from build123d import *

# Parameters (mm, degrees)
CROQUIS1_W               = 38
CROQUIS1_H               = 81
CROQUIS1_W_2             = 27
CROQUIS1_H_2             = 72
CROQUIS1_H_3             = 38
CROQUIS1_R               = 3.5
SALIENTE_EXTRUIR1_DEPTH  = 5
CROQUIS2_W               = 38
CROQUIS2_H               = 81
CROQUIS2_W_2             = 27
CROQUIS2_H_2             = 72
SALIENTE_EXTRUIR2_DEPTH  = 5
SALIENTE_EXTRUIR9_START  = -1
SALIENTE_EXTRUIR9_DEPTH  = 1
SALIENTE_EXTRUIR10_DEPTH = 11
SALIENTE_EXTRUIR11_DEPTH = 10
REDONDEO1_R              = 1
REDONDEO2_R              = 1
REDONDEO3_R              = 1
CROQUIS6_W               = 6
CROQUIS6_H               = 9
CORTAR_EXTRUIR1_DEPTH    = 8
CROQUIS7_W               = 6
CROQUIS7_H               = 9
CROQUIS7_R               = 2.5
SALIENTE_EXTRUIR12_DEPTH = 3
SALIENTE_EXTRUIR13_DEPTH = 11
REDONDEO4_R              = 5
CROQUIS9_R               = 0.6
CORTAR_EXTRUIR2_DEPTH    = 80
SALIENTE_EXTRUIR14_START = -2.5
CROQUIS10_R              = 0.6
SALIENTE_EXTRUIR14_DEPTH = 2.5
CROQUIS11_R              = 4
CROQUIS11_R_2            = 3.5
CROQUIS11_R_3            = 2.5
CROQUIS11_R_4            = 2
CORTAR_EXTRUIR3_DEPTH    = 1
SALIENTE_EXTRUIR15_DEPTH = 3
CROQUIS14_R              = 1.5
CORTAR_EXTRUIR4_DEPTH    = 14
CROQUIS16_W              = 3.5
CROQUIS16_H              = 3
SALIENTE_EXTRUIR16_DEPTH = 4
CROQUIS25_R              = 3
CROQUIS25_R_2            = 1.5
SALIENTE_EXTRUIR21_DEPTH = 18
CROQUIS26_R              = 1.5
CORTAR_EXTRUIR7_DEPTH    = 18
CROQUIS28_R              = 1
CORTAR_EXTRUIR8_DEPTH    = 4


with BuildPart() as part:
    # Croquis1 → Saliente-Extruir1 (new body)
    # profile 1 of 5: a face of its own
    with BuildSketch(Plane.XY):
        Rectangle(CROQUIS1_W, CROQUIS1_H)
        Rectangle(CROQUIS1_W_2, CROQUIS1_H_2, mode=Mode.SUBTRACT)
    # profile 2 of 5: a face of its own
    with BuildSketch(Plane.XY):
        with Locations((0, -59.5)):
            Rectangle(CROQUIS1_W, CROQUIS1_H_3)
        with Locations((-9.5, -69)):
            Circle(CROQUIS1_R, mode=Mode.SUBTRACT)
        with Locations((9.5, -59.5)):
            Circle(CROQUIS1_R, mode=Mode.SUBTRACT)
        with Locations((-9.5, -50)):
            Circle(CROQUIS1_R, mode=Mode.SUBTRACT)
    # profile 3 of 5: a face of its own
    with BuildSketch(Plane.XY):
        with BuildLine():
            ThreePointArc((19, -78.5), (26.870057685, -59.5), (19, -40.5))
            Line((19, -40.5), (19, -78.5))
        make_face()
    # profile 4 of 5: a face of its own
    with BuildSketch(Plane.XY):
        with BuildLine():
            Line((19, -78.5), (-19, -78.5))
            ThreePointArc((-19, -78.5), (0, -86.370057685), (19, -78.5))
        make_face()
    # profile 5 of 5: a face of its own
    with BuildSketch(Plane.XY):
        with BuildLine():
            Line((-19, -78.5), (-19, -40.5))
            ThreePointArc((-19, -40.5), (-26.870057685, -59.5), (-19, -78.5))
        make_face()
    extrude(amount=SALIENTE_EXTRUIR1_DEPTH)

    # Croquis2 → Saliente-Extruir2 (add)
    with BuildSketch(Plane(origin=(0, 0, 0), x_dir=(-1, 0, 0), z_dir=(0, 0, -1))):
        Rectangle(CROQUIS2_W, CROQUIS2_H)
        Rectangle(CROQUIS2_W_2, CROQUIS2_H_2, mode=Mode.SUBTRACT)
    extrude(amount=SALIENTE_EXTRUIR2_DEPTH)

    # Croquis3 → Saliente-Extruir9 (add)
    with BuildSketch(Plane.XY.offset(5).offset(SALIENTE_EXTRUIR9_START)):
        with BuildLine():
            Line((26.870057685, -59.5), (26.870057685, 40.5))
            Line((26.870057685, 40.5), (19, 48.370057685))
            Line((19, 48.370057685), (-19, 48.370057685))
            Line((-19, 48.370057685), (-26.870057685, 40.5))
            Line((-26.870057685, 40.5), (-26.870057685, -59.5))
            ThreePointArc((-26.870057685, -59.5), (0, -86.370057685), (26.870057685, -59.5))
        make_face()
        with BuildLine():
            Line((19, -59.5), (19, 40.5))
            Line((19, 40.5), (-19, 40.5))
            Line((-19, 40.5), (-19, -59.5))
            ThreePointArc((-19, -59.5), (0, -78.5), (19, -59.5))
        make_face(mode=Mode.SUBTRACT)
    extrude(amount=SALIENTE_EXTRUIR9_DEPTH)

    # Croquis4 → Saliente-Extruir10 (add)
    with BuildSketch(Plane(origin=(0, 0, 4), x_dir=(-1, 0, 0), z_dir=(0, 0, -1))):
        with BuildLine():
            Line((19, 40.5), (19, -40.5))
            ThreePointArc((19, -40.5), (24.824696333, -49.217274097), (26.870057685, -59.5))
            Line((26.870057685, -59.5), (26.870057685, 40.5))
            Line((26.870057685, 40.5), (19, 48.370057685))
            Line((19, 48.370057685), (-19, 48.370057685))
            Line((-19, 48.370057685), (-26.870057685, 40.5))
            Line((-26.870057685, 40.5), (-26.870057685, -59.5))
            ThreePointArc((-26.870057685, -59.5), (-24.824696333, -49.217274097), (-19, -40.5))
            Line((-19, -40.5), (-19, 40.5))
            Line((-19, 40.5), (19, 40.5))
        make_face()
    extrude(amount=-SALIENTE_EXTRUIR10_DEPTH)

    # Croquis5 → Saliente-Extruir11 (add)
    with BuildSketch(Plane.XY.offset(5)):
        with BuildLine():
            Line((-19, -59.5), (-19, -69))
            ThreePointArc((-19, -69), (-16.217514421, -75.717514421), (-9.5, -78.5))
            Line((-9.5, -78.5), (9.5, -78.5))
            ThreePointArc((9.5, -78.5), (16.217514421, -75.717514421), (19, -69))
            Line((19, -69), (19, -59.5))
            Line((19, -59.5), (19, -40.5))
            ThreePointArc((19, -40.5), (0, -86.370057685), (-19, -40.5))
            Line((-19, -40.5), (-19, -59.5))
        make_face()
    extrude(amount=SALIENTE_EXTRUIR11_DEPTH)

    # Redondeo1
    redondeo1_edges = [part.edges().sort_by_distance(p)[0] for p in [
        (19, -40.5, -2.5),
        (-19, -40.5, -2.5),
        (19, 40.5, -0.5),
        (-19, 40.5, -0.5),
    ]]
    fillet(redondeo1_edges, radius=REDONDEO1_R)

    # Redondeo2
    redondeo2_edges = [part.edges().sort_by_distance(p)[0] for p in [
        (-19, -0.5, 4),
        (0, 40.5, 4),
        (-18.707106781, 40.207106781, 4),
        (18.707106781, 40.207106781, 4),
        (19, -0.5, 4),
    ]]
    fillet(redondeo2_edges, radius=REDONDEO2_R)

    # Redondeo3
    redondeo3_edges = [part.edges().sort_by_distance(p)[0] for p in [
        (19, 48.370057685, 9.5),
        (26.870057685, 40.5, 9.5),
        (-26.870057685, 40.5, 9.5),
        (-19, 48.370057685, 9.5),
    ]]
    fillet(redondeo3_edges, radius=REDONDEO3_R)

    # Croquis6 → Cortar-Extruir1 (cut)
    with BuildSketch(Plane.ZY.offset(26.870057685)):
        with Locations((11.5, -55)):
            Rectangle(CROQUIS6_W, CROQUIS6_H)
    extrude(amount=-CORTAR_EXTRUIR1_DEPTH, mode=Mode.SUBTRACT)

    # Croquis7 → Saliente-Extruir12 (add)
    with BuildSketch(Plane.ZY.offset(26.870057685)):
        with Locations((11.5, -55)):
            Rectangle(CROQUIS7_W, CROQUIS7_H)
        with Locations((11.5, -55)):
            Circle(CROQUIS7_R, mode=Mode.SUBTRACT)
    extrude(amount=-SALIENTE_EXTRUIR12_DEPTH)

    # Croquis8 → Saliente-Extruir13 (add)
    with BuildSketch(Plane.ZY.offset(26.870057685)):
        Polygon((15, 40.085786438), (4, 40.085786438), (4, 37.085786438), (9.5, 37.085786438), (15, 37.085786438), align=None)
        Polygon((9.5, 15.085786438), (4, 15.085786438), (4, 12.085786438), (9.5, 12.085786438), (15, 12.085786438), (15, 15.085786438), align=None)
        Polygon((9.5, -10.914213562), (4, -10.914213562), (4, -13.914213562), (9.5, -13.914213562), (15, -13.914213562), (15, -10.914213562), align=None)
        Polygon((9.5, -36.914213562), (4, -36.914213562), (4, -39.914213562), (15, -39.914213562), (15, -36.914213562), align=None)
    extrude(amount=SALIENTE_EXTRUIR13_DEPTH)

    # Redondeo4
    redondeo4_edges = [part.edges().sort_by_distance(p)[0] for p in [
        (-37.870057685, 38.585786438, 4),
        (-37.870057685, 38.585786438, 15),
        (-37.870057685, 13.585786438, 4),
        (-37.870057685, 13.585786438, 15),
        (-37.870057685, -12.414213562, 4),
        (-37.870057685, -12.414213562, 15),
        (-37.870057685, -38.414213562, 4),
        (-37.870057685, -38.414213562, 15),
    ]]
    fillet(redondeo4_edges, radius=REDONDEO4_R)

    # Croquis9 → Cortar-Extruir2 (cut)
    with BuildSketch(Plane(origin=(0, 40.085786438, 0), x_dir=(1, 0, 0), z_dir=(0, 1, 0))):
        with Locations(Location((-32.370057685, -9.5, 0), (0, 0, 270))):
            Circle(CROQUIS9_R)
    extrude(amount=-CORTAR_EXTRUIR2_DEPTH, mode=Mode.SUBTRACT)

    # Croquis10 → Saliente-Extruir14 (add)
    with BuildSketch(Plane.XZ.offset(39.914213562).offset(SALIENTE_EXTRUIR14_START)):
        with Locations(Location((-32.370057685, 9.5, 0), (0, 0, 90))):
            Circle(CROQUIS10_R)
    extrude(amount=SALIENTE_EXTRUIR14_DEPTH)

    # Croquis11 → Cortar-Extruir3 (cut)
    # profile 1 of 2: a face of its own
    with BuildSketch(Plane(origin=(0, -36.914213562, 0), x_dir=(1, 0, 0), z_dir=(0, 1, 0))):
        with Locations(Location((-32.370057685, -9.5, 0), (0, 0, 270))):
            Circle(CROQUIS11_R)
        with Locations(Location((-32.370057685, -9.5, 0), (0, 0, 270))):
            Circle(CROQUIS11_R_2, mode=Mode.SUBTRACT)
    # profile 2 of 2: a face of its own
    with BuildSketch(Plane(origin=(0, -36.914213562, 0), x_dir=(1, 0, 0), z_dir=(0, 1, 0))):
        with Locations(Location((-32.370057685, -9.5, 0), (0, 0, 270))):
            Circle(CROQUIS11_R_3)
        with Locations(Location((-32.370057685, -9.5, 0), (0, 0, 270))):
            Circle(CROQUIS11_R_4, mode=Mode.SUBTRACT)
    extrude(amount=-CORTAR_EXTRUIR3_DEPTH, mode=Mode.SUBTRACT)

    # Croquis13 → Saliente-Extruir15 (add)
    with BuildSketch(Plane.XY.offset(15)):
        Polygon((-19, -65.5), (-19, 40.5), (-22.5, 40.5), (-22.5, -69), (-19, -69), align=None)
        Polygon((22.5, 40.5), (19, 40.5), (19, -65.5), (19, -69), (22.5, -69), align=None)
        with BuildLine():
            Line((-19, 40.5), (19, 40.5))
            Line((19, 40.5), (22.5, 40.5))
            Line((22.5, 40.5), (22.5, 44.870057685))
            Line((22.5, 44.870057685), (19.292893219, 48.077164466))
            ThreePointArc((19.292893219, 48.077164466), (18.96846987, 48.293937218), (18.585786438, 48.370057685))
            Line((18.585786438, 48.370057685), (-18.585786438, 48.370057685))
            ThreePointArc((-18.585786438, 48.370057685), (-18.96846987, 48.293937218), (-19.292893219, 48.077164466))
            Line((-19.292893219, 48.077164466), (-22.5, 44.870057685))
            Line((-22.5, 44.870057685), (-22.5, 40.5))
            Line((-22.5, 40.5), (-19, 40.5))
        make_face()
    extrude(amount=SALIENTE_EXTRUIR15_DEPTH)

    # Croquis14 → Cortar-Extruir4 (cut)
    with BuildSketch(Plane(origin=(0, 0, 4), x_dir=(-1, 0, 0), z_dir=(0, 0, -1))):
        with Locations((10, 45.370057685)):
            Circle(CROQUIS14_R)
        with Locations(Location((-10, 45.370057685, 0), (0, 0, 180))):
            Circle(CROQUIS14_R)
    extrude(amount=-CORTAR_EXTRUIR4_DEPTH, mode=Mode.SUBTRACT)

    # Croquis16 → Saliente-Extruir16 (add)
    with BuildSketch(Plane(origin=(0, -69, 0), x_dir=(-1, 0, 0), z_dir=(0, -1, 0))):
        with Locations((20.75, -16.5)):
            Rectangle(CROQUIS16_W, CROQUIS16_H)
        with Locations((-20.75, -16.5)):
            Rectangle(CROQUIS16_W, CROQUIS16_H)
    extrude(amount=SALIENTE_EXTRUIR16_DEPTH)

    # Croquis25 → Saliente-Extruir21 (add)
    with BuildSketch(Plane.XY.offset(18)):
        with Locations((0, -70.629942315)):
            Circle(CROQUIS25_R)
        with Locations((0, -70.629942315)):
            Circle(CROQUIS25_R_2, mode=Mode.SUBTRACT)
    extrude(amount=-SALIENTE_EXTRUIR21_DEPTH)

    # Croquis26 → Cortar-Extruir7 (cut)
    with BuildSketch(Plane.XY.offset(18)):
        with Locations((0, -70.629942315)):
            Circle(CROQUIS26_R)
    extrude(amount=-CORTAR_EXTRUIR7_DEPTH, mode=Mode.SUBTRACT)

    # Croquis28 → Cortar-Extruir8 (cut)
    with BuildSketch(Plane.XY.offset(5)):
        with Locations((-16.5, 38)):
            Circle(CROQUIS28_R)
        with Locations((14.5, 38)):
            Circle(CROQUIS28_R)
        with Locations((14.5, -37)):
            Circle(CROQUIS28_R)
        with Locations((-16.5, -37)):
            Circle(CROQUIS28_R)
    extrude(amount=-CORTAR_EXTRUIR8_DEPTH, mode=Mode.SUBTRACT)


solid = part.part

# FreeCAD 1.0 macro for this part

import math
import FreeCAD as App
import Part
import Sketcher
Q = App.Units.Quantity


def edges_at(feature, points):
    """Names of the edges that pass closest to the given points."""
    edges = feature.Shape.Edges
    near = lambda p: min(range(len(edges)), key=lambda i: edges[i].distToShape(Part.Vertex(*p))[0])
    return sorted({f"Edge{near(p) + 1}" for p in points})


def add_polygon(sketch, points):
    """Adds a closed chain of lines whose ends are joined by coincident constraints."""
    first, n = sketch.GeometryCount, len(points)
    for a, b in zip(points, points[1:] + points[:1]):
        sketch.addGeometry(Part.LineSegment(App.Vector(*a, 0), App.Vector(*b, 0)), False)
    for i in range(n):
        sketch.addConstraint(Sketcher.Constraint("Coincident", first + i, 2, first + (i + 1) % n, 1))

doc = App.newDocument("Part")
body = doc.addObject("PartDesign::Body", "Body")

sketch1 = doc.addObject("Sketcher::SketchObject", "Sketch")
body.addObject(sketch1)
sketch1.AttachmentSupport = (doc.XY_Plane, [""])
sketch1.MapMode = "FlatFace"
sketch1.addGeometry(Part.LineSegment(App.Vector(-19, 40.5, 0), App.Vector(-19, -40.5, 0)), False)
sketch1.addGeometry(Part.ArcOfCircle(Part.Circle(App.Vector(0, -59.5, 0), App.Vector(0, 0, 1), 26.9), math.radians(135), math.radians(225)), False)
sketch1.addGeometry(Part.ArcOfCircle(Part.Circle(App.Vector(0, -59.5, 0), App.Vector(0, 0, 1), 26.9), math.radians(-135), math.radians(-45)), False)
sketch1.addGeometry(Part.ArcOfCircle(Part.Circle(App.Vector(0, -59.5, 0), App.Vector(0, 0, 1), 26.9), math.radians(-45), math.radians(45)), False)
sketch1.addGeometry(Part.LineSegment(App.Vector(19, -40.5, 0), App.Vector(19, 40.5, 0)), False)
sketch1.addGeometry(Part.LineSegment(App.Vector(19, 40.5, 0), App.Vector(-19, 40.5, 0)), False)
add_polygon(sketch1, [(13.5, -36), (-13.5, -36), (-13.5, 36), (13.5, 36)])
sketch1.addGeometry(Part.Circle(App.Vector(9.5, -59.5, 0), App.Vector(0, 0, 1), 3.5), False)
sketch1.addGeometry(Part.Circle(App.Vector(-9.5, -69, 0), App.Vector(0, 0, 1), 3.5), False)
sketch1.addGeometry(Part.Circle(App.Vector(-9.5, -50, 0), App.Vector(0, 0, 1), 3.5), False)
sketch1.addConstraint(Sketcher.Constraint("Coincident", 0, 2, 1, 1))
sketch1.addConstraint(Sketcher.Constraint("Tangent", 1, 2, 2, 1))
sketch1.addConstraint(Sketcher.Constraint("Tangent", 2, 2, 3, 1))
sketch1.addConstraint(Sketcher.Constraint("Coincident", 3, 2, 4, 1))
sketch1.addConstraint(Sketcher.Constraint("Coincident", 4, 2, 5, 1))
sketch1.addConstraint(Sketcher.Constraint("Coincident", 5, 2, 0, 1))
sketch1.addConstraint(Sketcher.Constraint("Vertical", 0))
sketch1.addConstraint(Sketcher.Constraint("Vertical", 4))
sketch1.addConstraint(Sketcher.Constraint("Horizontal", 5))
sketch1.addConstraint(Sketcher.Constraint("Horizontal", 6))
sketch1.addConstraint(Sketcher.Constraint("Vertical", 7))
sketch1.addConstraint(Sketcher.Constraint("Horizontal", 8))
sketch1.addConstraint(Sketcher.Constraint("Vertical", 9))
sketch1.addConstraint(Sketcher.Constraint("Coincident", 3, 3, 1, 3))
sketch1.addConstraint(Sketcher.Constraint("Equal", 10, 11))
sketch1.addConstraint(Sketcher.Constraint("Equal", 11, 12))
sketch1.addConstraint(Sketcher.Constraint("Symmetric", 0, 2, 4, 2, -1, 1))
sketch1.addConstraint(Sketcher.Constraint("Symmetric", 6, 2, 8, 2, -1, 1))
sketch1.addConstraint(Sketcher.Constraint("Symmetric", 1, 2, 2, 2, -2))
sketch1.addConstraint(Sketcher.Constraint("Horizontal", 3, 3, 10, 3))
sketch1.addConstraint(Sketcher.Constraint("Vertical", 11, 3, 12, 3))
sketch1.addConstraint(Sketcher.Constraint("Vertical", 0, 2, 1, 2))
sketch1.addConstraint(Sketcher.Constraint("Diameter", 10, Q("7 mm")))
sketch1.addConstraint(Sketcher.Constraint("DistanceX", 5, 2, 5, 1, Q("38 mm")))
sketch1.addConstraint(Sketcher.Constraint("DistanceX", 6, 2, 6, 1, Q("27 mm")))
sketch1.addConstraint(Sketcher.Constraint("DistanceY", 0, 2, 0, 1, Q("81 mm")))
sketch1.addConstraint(Sketcher.Constraint("DistanceY", 7, 1, 7, 2, Q("72 mm")))
sketch1.addConstraint(Sketcher.Constraint("DistanceY", 11, 3, -1, 1, Q("69 mm")))
sketch1.addConstraint(Sketcher.Constraint("DistanceY", 12, 3, -1, 1, Q("50 mm")))
sketch1.addConstraint(Sketcher.Constraint("DistanceX", 11, 3, 10, 3, Q("19 mm")))
sketch1.addConstraint(Sketcher.Constraint("DistanceY", 1, 3, 0, 2, Q("19 mm")))
sketch1.addConstraint(Sketcher.Constraint("DistanceX", 6, 2, 12, 3, Q("4 mm")))
pad1 = doc.addObject("PartDesign::Pad", "Pad")
body.addObject(pad1)
pad1.Profile = sketch1
pad1.Length = 5

sketch2 = doc.addObject("Sketcher::SketchObject", "Sketch001")
body.addObject(sketch2)
sketch2.AttachmentSupport = (doc.XY_Plane, [""])
sketch2.MapMode = "FlatFace"
add_polygon(sketch2, [(19, 40), (19, -40), (-19, -40), (-19, 40)])
add_polygon(sketch2, [(-14, -36), (14, -36), (14, 36), (-14, 36)])
sketch2.addConstraint(Sketcher.Constraint("Vertical", 0))
sketch2.addConstraint(Sketcher.Constraint("Horizontal", 1))
sketch2.addConstraint(Sketcher.Constraint("Vertical", 2))
sketch2.addConstraint(Sketcher.Constraint("Horizontal", 3))
sketch2.addConstraint(Sketcher.Constraint("Horizontal", 4))
sketch2.addConstraint(Sketcher.Constraint("Vertical", 5))
sketch2.addConstraint(Sketcher.Constraint("Horizontal", 6))
sketch2.addConstraint(Sketcher.Constraint("Vertical", 7))
sketch2.addConstraint(Sketcher.Constraint("Symmetric", 0, 2, 2, 2, -1, 1))
sketch2.addConstraint(Sketcher.Constraint("Symmetric", 4, 2, 6, 2, -1, 1))
sketch2.addConstraint(Sketcher.Constraint("DistanceX", 1, 2, 1, 1, Q("38 mm")))
sketch2.addConstraint(Sketcher.Constraint("DistanceX", 4, 1, 4, 2, Q("27 mm")))
sketch2.addConstraint(Sketcher.Constraint("DistanceY", 0, 2, 0, 1, Q("81 mm")))
sketch2.addConstraint(Sketcher.Constraint("DistanceY", 5, 1, 5, 2, Q("72 mm")))
pad2 = doc.addObject("PartDesign::Pad", "Pad001")
body.addObject(pad2)
pad2.Profile = sketch2
pad2.Length = 5
pad2.Reversed = True

sketch3 = doc.addObject("Sketcher::SketchObject", "Sketch002")
body.addObject(sketch3)
sketch3.AttachmentSupport = (doc.XY_Plane, [""])
sketch3.MapMode = "FlatFace"
sketch3.AttachmentOffset = App.Placement(App.Vector(0, 0, 4), App.Rotation())
sketch3.addGeometry(Part.LineSegment(App.Vector(27, -60, 0), App.Vector(27, 40, 0)), False)
sketch3.addGeometry(Part.LineSegment(App.Vector(27, 40, 0), App.Vector(19, 48, 0)), False)
sketch3.addGeometry(Part.LineSegment(App.Vector(19, 48, 0), App.Vector(-19, 48, 0)), False)
sketch3.addGeometry(Part.LineSegment(App.Vector(-19, 48, 0), App.Vector(-27, 40, 0)), False)
sketch3.addGeometry(Part.LineSegment(App.Vector(-27, 40, 0), App.Vector(-27, -60, 0)), False)
sketch3.addGeometry(Part.ArcOfCircle(Part.Circle(App.Vector(0, -60, 0), App.Vector(0, 0, 1), 27), math.radians(180), math.radians(360)), False)
sketch3.addGeometry(Part.LineSegment(App.Vector(19, 40, 0), App.Vector(19, -60, 0)), False)
sketch3.addGeometry(Part.ArcOfCircle(Part.Circle(App.Vector(0, -60, 0), App.Vector(0, 0, 1), 19), math.radians(180), math.radians(360)), False)
sketch3.addGeometry(Part.LineSegment(App.Vector(-19, -60, 0), App.Vector(-19, 40, 0)), False)
sketch3.addGeometry(Part.LineSegment(App.Vector(-19, 40, 0), App.Vector(19, 40, 0)), False)
sketch3.addConstraint(Sketcher.Constraint("Coincident", 0, 2, 1, 1))
sketch3.addConstraint(Sketcher.Constraint("Coincident", 1, 2, 2, 1))
sketch3.addConstraint(Sketcher.Constraint("Coincident", 2, 2, 3, 1))
sketch3.addConstraint(Sketcher.Constraint("Coincident", 3, 2, 4, 1))
sketch3.addConstraint(Sketcher.Constraint("Tangent", 4, 2, 5, 1))
sketch3.addConstraint(Sketcher.Constraint("Tangent", 5, 2, 0, 1))
sketch3.addConstraint(Sketcher.Constraint("Tangent", 6, 2, 7, 2))
sketch3.addConstraint(Sketcher.Constraint("Tangent", 7, 1, 8, 1))
sketch3.addConstraint(Sketcher.Constraint("Coincident", 8, 2, 9, 1))
sketch3.addConstraint(Sketcher.Constraint("Coincident", 9, 2, 6, 1))
sketch3.addConstraint(Sketcher.Constraint("Vertical", 0))
sketch3.addConstraint(Sketcher.Constraint("Horizontal", 2))
sketch3.addConstraint(Sketcher.Constraint("Vertical", 4))
sketch3.addConstraint(Sketcher.Constraint("Vertical", 6))
sketch3.addConstraint(Sketcher.Constraint("Vertical", 8))
sketch3.addConstraint(Sketcher.Constraint("Horizontal", 9))
sketch3.addConstraint(Sketcher.Constraint("Coincident", 7, 3, 5, 3))
sketch3.addConstraint(Sketcher.Constraint("Symmetric", 0, 2, 3, 2, -2))
sketch3.addConstraint(Sketcher.Constraint("Perpendicular", 1, 3))
sketch3.addConstraint(Sketcher.Constraint("Horizontal", 3, 2, 8, 2))
sketch3.addConstraint(Sketcher.Constraint("Vertical", 1, 2, 6, 2))
sketch3.addConstraint(Sketcher.Constraint("Vertical", 2, 2, 7, 1))
sketch3.addConstraint(Sketcher.Constraint("Radius", 7, Q("19 mm")))
sketch3.addConstraint(Sketcher.Constraint("DistanceY", 0, 1, 0, 2, Q("100 mm")))
sketch3.addConstraint(Sketcher.Constraint("DistanceY", 5, 3, -1, 1, Q("59.5 mm")))
sketch3.addConstraint(Sketcher.Constraint("Radius", 5, Q("26.870058 mm")))
pad3 = doc.addObject("PartDesign::Pad", "Pad002")
body.addObject(pad3)
pad3.Profile = sketch3
pad3.Length = 1

sketch4 = doc.addObject("Sketcher::SketchObject", "Sketch003")
body.addObject(sketch4)
sketch4.AttachmentSupport = (doc.XY_Plane, [""])
sketch4.MapMode = "FlatFace"
sketch4.AttachmentOffset = App.Placement(App.Vector(0, 0, 4), App.Rotation())
sketch4.addGeometry(Part.LineSegment(App.Vector(-19, 40, 0), App.Vector(-19, -40, 0)), False)
sketch4.addGeometry(Part.ArcOfCircle(Part.Circle(App.Vector(0, -59, 0), App.Vector(0, 0, 1), 27), math.radians(135), math.radians(180)), False)
sketch4.addGeometry(Part.LineSegment(App.Vector(-27, -60, 0), App.Vector(-27, 40, 0)), False)
sketch4.addGeometry(Part.LineSegment(App.Vector(-27, 40, 0), App.Vector(-19, 48, 0)), False)
sketch4.addGeometry(Part.LineSegment(App.Vector(-19, 48, 0), App.Vector(19, 48, 0)), False)
sketch4.addGeometry(Part.LineSegment(App.Vector(19, 48, 0), App.Vector(27, 40, 0)), False)
sketch4.addGeometry(Part.LineSegment(App.Vector(27, 40, 0), App.Vector(27, -60, 0)), False)
sketch4.addGeometry(Part.ArcOfCircle(Part.Circle(App.Vector(0, -59, 0), App.Vector(0, 0, 1), 27), math.radians(0), math.radians(45)), False)
sketch4.addGeometry(Part.LineSegment(App.Vector(19, -40, 0), App.Vector(19, 40, 0)), False)
sketch4.addGeometry(Part.LineSegment(App.Vector(19, 40, 0), App.Vector(-19, 40, 0)), False)
sketch4.addConstraint(Sketcher.Constraint("Coincident", 0, 2, 1, 1))
sketch4.addConstraint(Sketcher.Constraint("Tangent", 1, 2, 2, 1))
sketch4.addConstraint(Sketcher.Constraint("Coincident", 2, 2, 3, 1))
sketch4.addConstraint(Sketcher.Constraint("Coincident", 3, 2, 4, 1))
sketch4.addConstraint(Sketcher.Constraint("Coincident", 4, 2, 5, 1))
sketch4.addConstraint(Sketcher.Constraint("Coincident", 5, 2, 6, 1))
sketch4.addConstraint(Sketcher.Constraint("Tangent", 6, 2, 7, 1))
sketch4.addConstraint(Sketcher.Constraint("Coincident", 7, 2, 8, 1))
sketch4.addConstraint(Sketcher.Constraint("Coincident", 8, 2, 9, 1))
sketch4.addConstraint(Sketcher.Constraint("Coincident", 9, 2, 0, 1))
sketch4.addConstraint(Sketcher.Constraint("Vertical", 0))
sketch4.addConstraint(Sketcher.Constraint("Vertical", 2))
sketch4.addConstraint(Sketcher.Constraint("Horizontal", 4))
sketch4.addConstraint(Sketcher.Constraint("Vertical", 6))
sketch4.addConstraint(Sketcher.Constraint("Vertical", 8))
sketch4.addConstraint(Sketcher.Constraint("Horizontal", 9))
sketch4.addConstraint(Sketcher.Constraint("Coincident", 7, 3, 1, 3))
sketch4.addConstraint(Sketcher.Constraint("Equal", 1, 7))
sketch4.addConstraint(Sketcher.Constraint("Symmetric", 0, 2, 8, 2, -1, 1))
sketch4.addConstraint(Sketcher.Constraint("Symmetric", 2, 2, 5, 2, -2))
sketch4.addConstraint(Sketcher.Constraint("Perpendicular", 3, 5))
sketch4.addConstraint(Sketcher.Constraint("Horizontal", 5, 2, 8, 2))
sketch4.addConstraint(Sketcher.Constraint("Vertical", 0, 2, 3, 2))
sketch4.addConstraint(Sketcher.Constraint("Vertical", 4, 2, 7, 2))
sketch4.addConstraint(Sketcher.Constraint("DistanceX", 4, 1, 4, 2, Q("38 mm")))
sketch4.addConstraint(Sketcher.Constraint("DistanceY", 0, 2, 0, 1, Q("81 mm")))
sketch4.addConstraint(Sketcher.Constraint("DistanceY", 2, 1, 2, 2, Q("100 mm")))
pad4 = doc.addObject("PartDesign::Pad", "Pad003")
body.addObject(pad4)
pad4.Profile = sketch4
pad4.Length = 11

sketch5 = doc.addObject("Sketcher::SketchObject", "Sketch004")
body.addObject(sketch5)
sketch5.AttachmentSupport = (doc.XY_Plane, [""])
sketch5.MapMode = "FlatFace"
sketch5.AttachmentOffset = App.Placement(App.Vector(0, 0, 5), App.Rotation())
sketch5.addGeometry(Part.ArcOfCircle(Part.Circle(App.Vector(-9, -69, 0), App.Vector(0, 0, 1), 10), math.radians(-180), math.radians(-90)), False)
sketch5.addGeometry(Part.LineSegment(App.Vector(-19, -69, 0), App.Vector(-19, -40, 0)), False)
sketch5.addGeometry(Part.ArcOfCircle(Part.Circle(App.Vector(0, -60, 0), App.Vector(0, 0, 1), 27), math.radians(135), math.radians(405)), False)
sketch5.addGeometry(Part.LineSegment(App.Vector(19, -40, 0), App.Vector(19, -69, 0)), False)
sketch5.addGeometry(Part.ArcOfCircle(Part.Circle(App.Vector(9, -69, 0), App.Vector(0, 0, 1), 10), math.radians(-90), math.radians(0)), False)
sketch5.addGeometry(Part.LineSegment(App.Vector(10, -78, 0), App.Vector(-10, -78, 0)), False)
sketch5.addConstraint(Sketcher.Constraint("Tangent", 0, 1, 1, 1))
sketch5.addConstraint(Sketcher.Constraint("Coincident", 1, 2, 2, 1))
sketch5.addConstraint(Sketcher.Constraint("Coincident", 2, 2, 3, 1))
sketch5.addConstraint(Sketcher.Constraint("Tangent", 3, 2, 4, 2))
sketch5.addConstraint(Sketcher.Constraint("Tangent", 4, 1, 5, 1))
sketch5.addConstraint(Sketcher.Constraint("Tangent", 5, 2, 0, 2))
sketch5.addConstraint(Sketcher.Constraint("Vertical", 1))
sketch5.addConstraint(Sketcher.Constraint("Vertical", 3))
sketch5.addConstraint(Sketcher.Constraint("Horizontal", 5))
sketch5.addConstraint(Sketcher.Constraint("Equal", 0, 4))
sketch5.addConstraint(Sketcher.Constraint("Symmetric", 1, 2, 2, 2, -2))
sketch5.addConstraint(Sketcher.Constraint("Radius", 0, Q("9.5 mm")))
sketch5.addConstraint(Sketcher.Constraint("DistanceX", 5, 2, 5, 1, Q("19 mm")))
sketch5.addConstraint(Sketcher.Constraint("DistanceY", 1, 1, 1, 2, Q("28.5 mm")))
sketch5.addConstraint(Sketcher.Constraint("DistanceY", 0, 3, -1, 1, Q("69 mm")))
sketch5.addConstraint(Sketcher.Constraint("DistanceY", 2, 3, 1, 2, Q("19 mm")))
pad5 = doc.addObject("PartDesign::Pad", "Pad004")
body.addObject(pad5)
pad5.Profile = sketch5
pad5.Length = 10
doc.recompute()

fillet = doc.addObject("PartDesign::Fillet", "Fillet")
body.addObject(fillet)
fillet.Base = (pad5, edges_at(pad5, [
    (19, -40.5, -2.5),
    (-19, -40.5, -2.5),
    (19, 40.5, -0.5),
    (-19, 40.5, -0.5),
]))
fillet.Radius = 1
doc.recompute()

fillet2 = doc.addObject("PartDesign::Fillet", "Fillet001")
body.addObject(fillet2)
fillet2.Base = (fillet, edges_at(fillet, [
    (-19, -0.5, 4),
    (0, 40.5, 4),
    (-18.707, 40.207, 4),
    (18.707, 40.207, 4),
    (19, -0.5, 4),
]))
fillet2.Radius = 1
doc.recompute()

fillet3 = doc.addObject("PartDesign::Fillet", "Fillet002")
body.addObject(fillet3)
fillet3.Base = (fillet2, edges_at(fillet2, [
    (19, 48.37, 9.5),
    (26.87, 40.5, 9.5),
    (-26.87, 40.5, 9.5),
    (-19, 48.37, 9.5),
]))
fillet3.Radius = 1

sketch6 = doc.addObject("Sketcher::SketchObject", "Sketch005")
body.addObject(sketch6)
sketch6.AttachmentSupport = (doc.YZ_Plane, [""])
sketch6.MapMode = "FlatFace"
sketch6.AttachmentOffset = App.Placement(App.Vector(0, 0, -26.870058), App.Rotation())
add_polygon(sketch6, [(-50, 8), (-60, 8), (-60, 14), (-50, 14)])
sketch6.addConstraint(Sketcher.Constraint("Horizontal", 0))
sketch6.addConstraint(Sketcher.Constraint("Vertical", 1))
sketch6.addConstraint(Sketcher.Constraint("Horizontal", 2))
sketch6.addConstraint(Sketcher.Constraint("Vertical", 3))
sketch6.addConstraint(Sketcher.Constraint("DistanceX", 0, 2, 0, 1, Q("9 mm")))
sketch6.addConstraint(Sketcher.Constraint("DistanceY", 1, 1, 1, 2, Q("6 mm")))
sketch6.addConstraint(Sketcher.Constraint("DistanceX", 0, 2, -1, 1, Q("59.5 mm")))
sketch6.addConstraint(Sketcher.Constraint("DistanceY", -1, 1, 0, 2, Q("8.5 mm")))
pocket1 = doc.addObject("PartDesign::Pocket", "Pocket")
body.addObject(pocket1)
pocket1.Profile = sketch6
pocket1.Length = 8
pocket1.Reversed = True

sketch7 = doc.addObject("Sketcher::SketchObject", "Sketch006")
body.addObject(sketch7)
sketch7.AttachmentSupport = (doc.YZ_Plane, [""])
sketch7.MapMode = "FlatFace"
sketch7.AttachmentOffset = App.Placement(App.Vector(0, 0, -26.870058), App.Rotation())
add_polygon(sketch7, [(-50.5, 8.5), (-59.5, 8.5), (-59.5, 14.5), (-50.5, 14.5)])
sketch7.addGeometry(Part.Circle(App.Vector(-55, 11.5, 0), App.Vector(0, 0, 1), 2.5), False)
sketch7.addConstraint(Sketcher.Constraint("Horizontal", 0))
sketch7.addConstraint(Sketcher.Constraint("Vertical", 1))
sketch7.addConstraint(Sketcher.Constraint("Horizontal", 2))
sketch7.addConstraint(Sketcher.Constraint("Vertical", 3))
sketch7.addConstraint(Sketcher.Constraint("Diameter", 4, Q("5 mm")))
sketch7.addConstraint(Sketcher.Constraint("DistanceX", 0, 2, 0, 1, Q("9 mm")))
sketch7.addConstraint(Sketcher.Constraint("DistanceY", 1, 1, 1, 2, Q("6 mm")))
sketch7.addConstraint(Sketcher.Constraint("DistanceX", 4, 3, -1, 1, Q("55 mm")))
sketch7.addConstraint(Sketcher.Constraint("DistanceY", 0, 2, 4, 3, Q("3 mm")))
sketch7.addConstraint(Sketcher.Constraint("DistanceY", -1, 1, 4, 3, Q("11.5 mm")))
sketch7.addConstraint(Sketcher.Constraint("DistanceX", 0, 2, -1, 1, Q("59.5 mm")))
pad6 = doc.addObject("PartDesign::Pad", "Pad005")
body.addObject(pad6)
pad6.Profile = sketch7
pad6.Length = 3

sketch8 = doc.addObject("Sketcher::SketchObject", "Sketch007")
body.addObject(sketch8)
sketch8.AttachmentSupport = (doc.YZ_Plane, [""])
sketch8.MapMode = "FlatFace"
sketch8.AttachmentOffset = App.Placement(App.Vector(0, 0, -26.870058), App.Rotation())
add_polygon(sketch8, [(40.1, 15), (40.1, 4), (37.1, 4), (37.1, 15)])
add_polygon(sketch8, [(15.1, 4), (12.1, 4), (12.1, 15), (15.1, 15)])
add_polygon(sketch8, [(-10.9, 4), (-13.9, 4), (-13.9, 15), (-10.9, 15)])
add_polygon(sketch8, [(-36.9, 4), (-39.9, 4), (-39.9, 15), (-36.9, 15)])
sketch8.addConstraint(Sketcher.Constraint("Vertical", 0))
sketch8.addConstraint(Sketcher.Constraint("Horizontal", 1))
sketch8.addConstraint(Sketcher.Constraint("Vertical", 2))
sketch8.addConstraint(Sketcher.Constraint("Horizontal", 3))
sketch8.addConstraint(Sketcher.Constraint("Horizontal", 4))
sketch8.addConstraint(Sketcher.Constraint("Vertical", 5))
sketch8.addConstraint(Sketcher.Constraint("Horizontal", 6))
sketch8.addConstraint(Sketcher.Constraint("Vertical", 7))
sketch8.addConstraint(Sketcher.Constraint("Horizontal", 8))
sketch8.addConstraint(Sketcher.Constraint("Vertical", 9))
sketch8.addConstraint(Sketcher.Constraint("Horizontal", 10))
sketch8.addConstraint(Sketcher.Constraint("Vertical", 11))
sketch8.addConstraint(Sketcher.Constraint("Horizontal", 12))
sketch8.addConstraint(Sketcher.Constraint("Vertical", 13))
sketch8.addConstraint(Sketcher.Constraint("Horizontal", 14))
sketch8.addConstraint(Sketcher.Constraint("Vertical", 15))
sketch8.addConstraint(Sketcher.Constraint("Horizontal", 1, 2, 4, 2))
sketch8.addConstraint(Sketcher.Constraint("Horizontal", 3, 2, 5, 2))
sketch8.addConstraint(Sketcher.Constraint("Horizontal", 7, 2, 8, 2))
sketch8.addConstraint(Sketcher.Constraint("Horizontal", 6, 2, 9, 2))
sketch8.addConstraint(Sketcher.Constraint("Horizontal", 11, 2, 12, 2))
sketch8.addConstraint(Sketcher.Constraint("Horizontal", 10, 2, 13, 2))
sketch8.addConstraint(Sketcher.Constraint("Equal", 3, 4))
sketch8.addConstraint(Sketcher.Constraint("Equal", 6, 8))
sketch8.addConstraint(Sketcher.Constraint("Equal", 10, 12))
sketch8.addConstraint(Sketcher.Constraint("DistanceX", 1, 2, 1, 1, Q("3 mm")))
sketch8.addConstraint(Sketcher.Constraint("DistanceY", 0, 2, 0, 1, Q("11 mm")))
sketch8.addConstraint(Sketcher.Constraint("DistanceY", -1, 1, 0, 2, Q("4 mm")))
sketch8.addConstraint(Sketcher.Constraint("DistanceX", 4, 2, 1, 2, Q("25 mm")))
sketch8.addConstraint(Sketcher.Constraint("DistanceX", 8, 2, 4, 2, Q("26 mm")))
sketch8.addConstraint(Sketcher.Constraint("DistanceX", 12, 2, 8, 2, Q("26 mm")))
sketch8.addConstraint(Sketcher.Constraint("DistanceX", -1, 1, 0, 2, Q("40.085786 mm")))
pad7 = doc.addObject("PartDesign::Pad", "Pad006")
body.addObject(pad7)
pad7.Profile = sketch8
pad7.Length = 11
pad7.Reversed = True
doc.recompute()

fillet4 = doc.addObject("PartDesign::Fillet", "Fillet003")
body.addObject(fillet4)
fillet4.Base = (pad7, edges_at(pad7, [
    (-37.87, 38.586, 4),
    (-37.87, 38.586, 15),
    (-37.87, 13.586, 4),
    (-37.87, 13.586, 15),
    (-37.87, -12.414, 4),
    (-37.87, -12.414, 15),
    (-37.87, -38.414, 4),
    (-37.87, -38.414, 15),
]))
fillet4.Radius = 5

sketch9 = doc.addObject("Sketcher::SketchObject", "Sketch008")
body.addObject(sketch9)
sketch9.AttachmentSupport = (doc.XZ_Plane, [""])
sketch9.MapMode = "FlatFace"
sketch9.AttachmentOffset = App.Placement(App.Vector(0, 0, -40.085786), App.Rotation())
sketch9.addGeometry(Part.Circle(App.Vector(-32.4, 9.5, 0), App.Vector(0, 0, 1), 0.6), False)
sketch9.addConstraint(Sketcher.Constraint("Diameter", 0, Q("1.2 mm")))
sketch9.addConstraint(Sketcher.Constraint("DistanceY", -1, 1, 0, 3, Q("9.5 mm")))
sketch9.addConstraint(Sketcher.Constraint("DistanceX", 0, 3, -1, 1, Q("32.370058 mm")))
pocket2 = doc.addObject("PartDesign::Pocket", "Pocket001")
body.addObject(pocket2)
pocket2.Profile = sketch9
pocket2.Length = 80
pocket2.Reversed = True

sketch10 = doc.addObject("Sketcher::SketchObject", "Sketch009")
body.addObject(sketch10)
sketch10.AttachmentSupport = (doc.XZ_Plane, [""])
sketch10.MapMode = "FlatFace"
sketch10.AttachmentOffset = App.Placement(App.Vector(0, 0, 37.414214), App.Rotation())
sketch10.addGeometry(Part.Circle(App.Vector(-32.4, 9.5, 0), App.Vector(0, 0, 1), 0.6), False)
sketch10.addConstraint(Sketcher.Constraint("Diameter", 0, Q("1.2 mm")))
sketch10.addConstraint(Sketcher.Constraint("DistanceY", -1, 1, 0, 3, Q("9.5 mm")))
sketch10.addConstraint(Sketcher.Constraint("DistanceX", 0, 3, -1, 1, Q("32.370058 mm")))
pad8 = doc.addObject("PartDesign::Pad", "Pad007")
body.addObject(pad8)
pad8.Profile = sketch10
pad8.Length = 2.5

sketch11 = doc.addObject("Sketcher::SketchObject", "Sketch010")
body.addObject(sketch11)
sketch11.AttachmentSupport = (doc.XZ_Plane, [""])
sketch11.MapMode = "FlatFace"
sketch11.AttachmentOffset = App.Placement(App.Vector(0, 0, 36.914214), App.Rotation())
sketch11.addGeometry(Part.Circle(App.Vector(-32.4, 9.5, 0), App.Vector(0, 0, 1), 4), False)
sketch11.addGeometry(Part.Circle(App.Vector(-32.4, 9.5, 0), App.Vector(0, 0, 1), 3.5), False)
sketch11.addGeometry(Part.Circle(App.Vector(-32.4, 9.5, 0), App.Vector(0, 0, 1), 2.5), False)
sketch11.addGeometry(Part.Circle(App.Vector(-32.4, 9.5, 0), App.Vector(0, 0, 1), 2), False)
sketch11.addConstraint(Sketcher.Constraint("Coincident", 1, 3, 0, 3))
sketch11.addConstraint(Sketcher.Constraint("Coincident", 2, 3, 0, 3))
sketch11.addConstraint(Sketcher.Constraint("Coincident", 3, 3, 0, 3))
sketch11.addConstraint(Sketcher.Constraint("Diameter", 0, Q("8 mm")))
sketch11.addConstraint(Sketcher.Constraint("Diameter", 1, Q("7 mm")))
sketch11.addConstraint(Sketcher.Constraint("Diameter", 2, Q("5 mm")))
sketch11.addConstraint(Sketcher.Constraint("Diameter", 3, Q("4 mm")))
sketch11.addConstraint(Sketcher.Constraint("DistanceY", -1, 1, 0, 3, Q("9.5 mm")))
sketch11.addConstraint(Sketcher.Constraint("DistanceX", 0, 3, -1, 1, Q("32.370058 mm")))
pocket3 = doc.addObject("PartDesign::Pocket", "Pocket002")
body.addObject(pocket3)
pocket3.Profile = sketch11
pocket3.Length = 1
pocket3.Reversed = True

sketch12 = doc.addObject("Sketcher::SketchObject", "Sketch011")
body.addObject(sketch12)
sketch12.AttachmentSupport = (doc.XY_Plane, [""])
sketch12.MapMode = "FlatFace"
sketch12.AttachmentOffset = App.Placement(App.Vector(0, 0, 15), App.Rotation())
sketch12.addGeometry(Part.LineSegment(App.Vector(-22.5, -69, 0), App.Vector(-19, -69, 0)), False)
sketch12.addGeometry(Part.LineSegment(App.Vector(-19, -69, 0), App.Vector(-19, 40.5, 0)), False)
sketch12.addGeometry(Part.LineSegment(App.Vector(-19, 40.5, 0), App.Vector(19, 40.5, 0)), False)
sketch12.addGeometry(Part.LineSegment(App.Vector(19, 40.5, 0), App.Vector(19, -69, 0)), False)
sketch12.addGeometry(Part.LineSegment(App.Vector(19, -69, 0), App.Vector(22.5, -69, 0)), False)
sketch12.addGeometry(Part.LineSegment(App.Vector(22.5, -69, 0), App.Vector(22.5, 44.9, 0)), False)
sketch12.addGeometry(Part.LineSegment(App.Vector(22.5, 44.9, 0), App.Vector(19.3, 48.1, 0)), False)
sketch12.addGeometry(Part.ArcOfCircle(Part.Circle(App.Vector(18.6, 47.4, 0), App.Vector(0, 0, 1), 1), math.radians(45), math.radians(90)), False)
sketch12.addGeometry(Part.LineSegment(App.Vector(18.6, 48.4, 0), App.Vector(-18.6, 48.4, 0)), False)
sketch12.addGeometry(Part.ArcOfCircle(Part.Circle(App.Vector(-18.6, 47.4, 0), App.Vector(0, 0, 1), 1), math.radians(90), math.radians(135)), False)
sketch12.addGeometry(Part.LineSegment(App.Vector(-19.3, 48.1, 0), App.Vector(-22.5, 44.9, 0)), False)
sketch12.addGeometry(Part.LineSegment(App.Vector(-22.5, 44.9, 0), App.Vector(-22.5, -69, 0)), False)
sketch12.addConstraint(Sketcher.Constraint("Coincident", 0, 2, 1, 1))
sketch12.addConstraint(Sketcher.Constraint("Coincident", 1, 2, 2, 1))
sketch12.addConstraint(Sketcher.Constraint("Coincident", 2, 2, 3, 1))
sketch12.addConstraint(Sketcher.Constraint("Coincident", 3, 2, 4, 1))
sketch12.addConstraint(Sketcher.Constraint("Coincident", 4, 2, 5, 1))
sketch12.addConstraint(Sketcher.Constraint("Coincident", 5, 2, 6, 1))
sketch12.addConstraint(Sketcher.Constraint("Tangent", 6, 2, 7, 1))
sketch12.addConstraint(Sketcher.Constraint("Tangent", 7, 2, 8, 1))
sketch12.addConstraint(Sketcher.Constraint("Tangent", 8, 2, 9, 1))
sketch12.addConstraint(Sketcher.Constraint("Tangent", 9, 2, 10, 1))
sketch12.addConstraint(Sketcher.Constraint("Coincident", 10, 2, 11, 1))
sketch12.addConstraint(Sketcher.Constraint("Coincident", 11, 2, 0, 1))
sketch12.addConstraint(Sketcher.Constraint("Horizontal", 0))
sketch12.addConstraint(Sketcher.Constraint("Vertical", 1))
sketch12.addConstraint(Sketcher.Constraint("Horizontal", 2))
sketch12.addConstraint(Sketcher.Constraint("Vertical", 3))
sketch12.addConstraint(Sketcher.Constraint("Horizontal", 4))
sketch12.addConstraint(Sketcher.Constraint("Vertical", 5))
sketch12.addConstraint(Sketcher.Constraint("Horizontal", 8))
sketch12.addConstraint(Sketcher.Constraint("Vertical", 11))
sketch12.addConstraint(Sketcher.Constraint("Equal", 7, 9))
sketch12.addConstraint(Sketcher.Constraint("Symmetric", 0, 2, 3, 2, -2))
sketch12.addConstraint(Sketcher.Constraint("Symmetric", 6, 2, 9, 2, -2))
sketch12.addConstraint(Sketcher.Constraint("Perpendicular", 6, 10))
sketch12.addConstraint(Sketcher.Constraint("Horizontal", 5, 2, 10, 2))
sketch12.addConstraint(Sketcher.Constraint("Radius", 7, Q("1 mm")))
sketch12.addConstraint(Sketcher.Constraint("DistanceX", 2, 1, 2, 2, Q("38 mm")))
sketch12.addConstraint(Sketcher.Constraint("DistanceX", 0, 1, 0, 2, Q("3.5 mm")))
sketch12.addConstraint(Sketcher.Constraint("DistanceY", 1, 1, 1, 2, Q("109.5 mm")))
sketch12.addConstraint(Sketcher.Constraint("DistanceY", 0, 2, -1, 1, Q("69 mm")))
sketch12.addConstraint(Sketcher.Constraint("DistanceY", 5, 2, 7, 3, Q("2.5 mm")))
sketch12.addConstraint(Sketcher.Constraint("DistanceY", 5, 1, 5, 2, Q("113.870058 mm")))
pad9 = doc.addObject("PartDesign::Pad", "Pad008")
body.addObject(pad9)
pad9.Profile = sketch12
pad9.Length = 3

sketch13 = doc.addObject("Sketcher::SketchObject", "Sketch012")
body.addObject(sketch13)
sketch13.AttachmentSupport = (doc.XY_Plane, [""])
sketch13.MapMode = "FlatFace"
sketch13.AttachmentOffset = App.Placement(App.Vector(0, 0, 4), App.Rotation())
sketch13.addGeometry(Part.Circle(App.Vector(-10, 45.4, 0), App.Vector(0, 0, 1), 1.5), False)
sketch13.addGeometry(Part.Circle(App.Vector(10, 45.4, 0), App.Vector(0, 0, 1), 1.5), False)
sketch13.addConstraint(Sketcher.Constraint("Equal", 0, 1))
sketch13.addConstraint(Sketcher.Constraint("Symmetric", 0, 3, 1, 3, -2))
sketch13.addConstraint(Sketcher.Constraint("Diameter", 0, Q("3 mm")))
sketch13.addConstraint(Sketcher.Constraint("DistanceX", 0, 3, -1, 1, Q("10 mm")))
sketch13.addConstraint(Sketcher.Constraint("DistanceY", -1, 1, 0, 3, Q("45.370058 mm")))
pocket4 = doc.addObject("PartDesign::Pocket", "Pocket003")
body.addObject(pocket4)
pocket4.Profile = sketch13
pocket4.Length = 14
pocket4.Reversed = True

sketch14 = doc.addObject("Sketcher::SketchObject", "Sketch013")
body.addObject(sketch14)
sketch14.AttachmentSupport = (doc.XZ_Plane, [""])
sketch14.MapMode = "FlatFace"
sketch14.AttachmentOffset = App.Placement(App.Vector(0, 0, 69), App.Rotation())
add_polygon(sketch14, [(-19, 15), (-19, 18), (-22.5, 18), (-22.5, 15)])
add_polygon(sketch14, [(22.5, 15), (22.5, 18), (19, 18), (19, 15)])
sketch14.addConstraint(Sketcher.Constraint("Vertical", 0))
sketch14.addConstraint(Sketcher.Constraint("Horizontal", 1))
sketch14.addConstraint(Sketcher.Constraint("Vertical", 2))
sketch14.addConstraint(Sketcher.Constraint("Horizontal", 3))
sketch14.addConstraint(Sketcher.Constraint("Vertical", 4))
sketch14.addConstraint(Sketcher.Constraint("Horizontal", 5))
sketch14.addConstraint(Sketcher.Constraint("Vertical", 6))
sketch14.addConstraint(Sketcher.Constraint("Horizontal", 7))
sketch14.addConstraint(Sketcher.Constraint("Symmetric", 1, 2, 4, 2, -2))
sketch14.addConstraint(Sketcher.Constraint("Symmetric", 3, 2, 6, 2, -2))
sketch14.addConstraint(Sketcher.Constraint("DistanceY", 0, 1, 0, 2, Q("3 mm")))
sketch14.addConstraint(Sketcher.Constraint("DistanceX", 1, 2, 1, 1, Q("3.5 mm")))
sketch14.addConstraint(Sketcher.Constraint("DistanceX", 0, 2, -1, 1, Q("19 mm")))
sketch14.addConstraint(Sketcher.Constraint("DistanceY", -1, 1, 0, 2, Q("18 mm")))
pad10 = doc.addObject("PartDesign::Pad", "Pad009")
body.addObject(pad10)
pad10.Profile = sketch14
pad10.Length = 4

sketch15 = doc.addObject("Sketcher::SketchObject", "Sketch014")
body.addObject(sketch15)
sketch15.AttachmentSupport = (doc.XY_Plane, [""])
sketch15.MapMode = "FlatFace"
sketch15.AttachmentOffset = App.Placement(App.Vector(0, 0, 18), App.Rotation())
sketch15.addGeometry(Part.Circle(App.Vector(0, -70.6, 0), App.Vector(0, 0, 1), 3), False)
sketch15.addGeometry(Part.Circle(App.Vector(0, -70.6, 0), App.Vector(0, 0, 1), 1.5), False)
sketch15.addConstraint(Sketcher.Constraint("Coincident", 1, 3, 0, 3))
sketch15.addConstraint(Sketcher.Constraint("PointOnObject", 0, 3, -2))
sketch15.addConstraint(Sketcher.Constraint("Diameter", 0, Q("6 mm")))
sketch15.addConstraint(Sketcher.Constraint("Diameter", 1, Q("3 mm")))
sketch15.addConstraint(Sketcher.Constraint("DistanceY", 0, 3, -1, 1, Q("70.629942 mm")))
pad11 = doc.addObject("PartDesign::Pad", "Pad010")
body.addObject(pad11)
pad11.Profile = sketch15
pad11.Length = 18
pad11.Reversed = True

sketch16 = doc.addObject("Sketcher::SketchObject", "Sketch015")
body.addObject(sketch16)
sketch16.AttachmentSupport = (doc.XY_Plane, [""])
sketch16.MapMode = "FlatFace"
sketch16.AttachmentOffset = App.Placement(App.Vector(0, 0, 18), App.Rotation())
sketch16.addGeometry(Part.Circle(App.Vector(0, -70.6, 0), App.Vector(0, 0, 1), 1.5), False)
sketch16.addConstraint(Sketcher.Constraint("PointOnObject", 0, 3, -2))
sketch16.addConstraint(Sketcher.Constraint("Diameter", 0, Q("3 mm")))
sketch16.addConstraint(Sketcher.Constraint("DistanceY", 0, 3, -1, 1, Q("70.629942 mm")))
pocket5 = doc.addObject("PartDesign::Pocket", "Pocket004")
body.addObject(pocket5)
pocket5.Profile = sketch16
pocket5.Length = 18

sketch17 = doc.addObject("Sketcher::SketchObject", "Sketch016")
body.addObject(sketch17)
sketch17.AttachmentSupport = (doc.XY_Plane, [""])
sketch17.MapMode = "FlatFace"
sketch17.AttachmentOffset = App.Placement(App.Vector(0, 0, 5), App.Rotation())
sketch17.addGeometry(Part.Circle(App.Vector(-16.5, 38, 0), App.Vector(0, 0, 1), 1), False)
sketch17.addGeometry(Part.Circle(App.Vector(14.5, 38, 0), App.Vector(0, 0, 1), 1), False)
sketch17.addGeometry(Part.Circle(App.Vector(14.5, -37, 0), App.Vector(0, 0, 1), 1), False)
sketch17.addGeometry(Part.Circle(App.Vector(-16.5, -37, 0), App.Vector(0, 0, 1), 1), False)
sketch17.addConstraint(Sketcher.Constraint("Equal", 0, 1))
sketch17.addConstraint(Sketcher.Constraint("Equal", 1, 2))
sketch17.addConstraint(Sketcher.Constraint("Equal", 2, 3))
sketch17.addConstraint(Sketcher.Constraint("Horizontal", 0, 3, 1, 3))
sketch17.addConstraint(Sketcher.Constraint("Horizontal", 2, 3, 3, 3))
sketch17.addConstraint(Sketcher.Constraint("Vertical", 1, 3, 2, 3))
sketch17.addConstraint(Sketcher.Constraint("Vertical", 0, 3, 3, 3))
sketch17.addConstraint(Sketcher.Constraint("Diameter", 0, Q("2 mm")))
sketch17.addConstraint(Sketcher.Constraint("DistanceY", -1, 1, 0, 3, Q("38 mm")))
sketch17.addConstraint(Sketcher.Constraint("DistanceY", 2, 3, -1, 1, Q("37 mm")))
sketch17.addConstraint(Sketcher.Constraint("DistanceX", 0, 3, 1, 3, Q("31 mm")))
sketch17.addConstraint(Sketcher.Constraint("DistanceX", 0, 3, -1, 1, Q("16.5 mm")))
pocket6 = doc.addObject("PartDesign::Pocket", "Pocket005")
body.addObject(pocket6)
pocket6.Profile = sketch17
pocket6.Length = 4

doc.recompute()
